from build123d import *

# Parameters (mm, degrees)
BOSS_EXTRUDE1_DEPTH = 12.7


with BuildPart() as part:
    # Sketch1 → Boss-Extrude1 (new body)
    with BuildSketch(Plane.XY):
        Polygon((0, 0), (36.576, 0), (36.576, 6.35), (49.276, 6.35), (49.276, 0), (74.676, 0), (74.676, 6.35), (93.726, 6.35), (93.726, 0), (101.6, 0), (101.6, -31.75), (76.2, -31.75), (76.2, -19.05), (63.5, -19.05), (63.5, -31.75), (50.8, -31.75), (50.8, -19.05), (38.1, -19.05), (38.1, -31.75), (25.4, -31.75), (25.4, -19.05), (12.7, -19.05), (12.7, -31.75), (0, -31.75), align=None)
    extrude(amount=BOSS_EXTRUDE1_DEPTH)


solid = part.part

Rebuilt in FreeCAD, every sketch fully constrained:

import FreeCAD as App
import Part
import Sketcher
Q = App.Units.Quantity

doc = App.newDocument("Part")
body = doc.addObject("PartDesign::Body", "Body")

# Sketch on XY plane
sketch1 = doc.addObject("Sketcher::SketchObject", "Sketch")
body.addObject(sketch1)
sketch1.AttachmentSupport = (doc.XY_Plane, [""])
sketch1.MapMode = "FlatFace"
sketch1.addGeometry([
    Part.LineSegment(App.Vector(36.576, 0, 0), App.Vector(0, 0, 0)),  # 0
    Part.LineSegment(App.Vector(0, 0, 0), App.Vector(0, -31.75, 0)),  # 1
    Part.LineSegment(App.Vector(0, -31.75, 0), App.Vector(12.7, -31.75, 0)),  # 2
    Part.LineSegment(App.Vector(12.7, -31.75, 0), App.Vector(12.7, -19.05, 0)),  # 3
    Part.LineSegment(App.Vector(12.7, -19.05, 0), App.Vector(25.4, -19.05, 0)),  # 4
    Part.LineSegment(App.Vector(25.4, -19.05, 0), App.Vector(25.4, -31.75, 0)),  # 5
    Part.LineSegment(App.Vector(25.4, -31.75, 0), App.Vector(38.1, -31.75, 0)),  # 6
    Part.LineSegment(App.Vector(38.1, -31.75, 0), App.Vector(38.1, -19.05, 0)),  # 7
    Part.LineSegment(App.Vector(38.1, -19.05, 0), App.Vector(50.8, -19.05, 0)),  # 8
    Part.LineSegment(App.Vector(50.8, -19.05, 0), App.Vector(50.8, -31.75, 0)),  # 9
    Part.LineSegment(App.Vector(50.8, -31.75, 0), App.Vector(63.5, -31.75, 0)),  # 10
    Part.LineSegment(App.Vector(63.5, -31.75, 0), App.Vector(63.5, -19.05, 0)),  # 11
    Part.LineSegment(App.Vector(63.5, -19.05, 0), App.Vector(76.2, -19.05, 0)),  # 12
    Part.LineSegment(App.Vector(76.2, -19.05, 0), App.Vector(76.2, -31.75, 0)),  # 13
    Part.LineSegment(App.Vector(76.2, -31.75, 0), App.Vector(101.6, -31.75, 0)),  # 14
    Part.LineSegment(App.Vector(101.6, -31.75, 0), App.Vector(101.6, 0, 0)),  # 15
    Part.LineSegment(App.Vector(101.6, 0, 0), App.Vector(93.726, 0, 0)),  # 16
    Part.LineSegment(App.Vector(93.726, 0, 0), App.Vector(93.726, 6.35, 0)),  # 17
    Part.LineSegment(App.Vector(93.726, 6.35, 0), App.Vector(74.676, 6.35, 0)),  # 18
    Part.LineSegment(App.Vector(74.676, 6.35, 0), App.Vector(74.676, 0, 0)),  # 19
    Part.LineSegment(App.Vector(74.676, 0, 0), App.Vector(49.276, 0, 0)),  # 20
    Part.LineSegment(App.Vector(49.276, 0, 0), App.Vector(49.276, 6.35, 0)),  # 21
    Part.LineSegment(App.Vector(49.276, 6.35, 0), App.Vector(36.576, 6.35, 0)),  # 22
    Part.LineSegment(App.Vector(36.576, 6.35, 0), App.Vector(36.576, 0, 0)),  # 23
], False)
sketch1.addConstraint([
    Sketcher.Constraint("Coincident", 0, 2, 1, 1),
    Sketcher.Constraint("Coincident", 1, 2, 2, 1),
    Sketcher.Constraint("Coincident", 2, 2, 3, 1),
    Sketcher.Constraint("Coincident", 3, 2, 4, 1),
    Sketcher.Constraint("Coincident", 4, 2, 5, 1),
    Sketcher.Constraint("Coincident", 5, 2, 6, 1),
    Sketcher.Constraint("Coincident", 6, 2, 7, 1),
    Sketcher.Constraint("Coincident", 7, 2, 8, 1),
    Sketcher.Constraint("Coincident", 8, 2, 9, 1),
    Sketcher.Constraint("Coincident", 9, 2, 10, 1),
    Sketcher.Constraint("Coincident", 10, 2, 11, 1),
    Sketcher.Constraint("Coincident", 11, 2, 12, 1),
    Sketcher.Constraint("Coincident", 12, 2, 13, 1),
    Sketcher.Constraint("Coincident", 13, 2, 14, 1),
    Sketcher.Constraint("Coincident", 14, 2, 15, 1),
    Sketcher.Constraint("Coincident", 15, 2, 16, 1),
    Sketcher.Constraint("Coincident", 16, 2, 17, 1),
    Sketcher.Constraint("Coincident", 17, 2, 18, 1),
    Sketcher.Constraint("Coincident", 18, 2, 19, 1),
    Sketcher.Constraint("Coincident", 19, 2, 20, 1),
    Sketcher.Constraint("Coincident", 20, 2, 21, 1),
    Sketcher.Constraint("Coincident", 21, 2, 22, 1),
    Sketcher.Constraint("Coincident", 22, 2, 23, 1),
    Sketcher.Constraint("Coincident", 23, 2, 0, 1),
    Sketcher.Constraint("Horizontal", 0),
    Sketcher.Constraint("Vertical", 1),
    Sketcher.Constraint("Horizontal", 2),
    Sketcher.Constraint("Vertical", 3),
    Sketcher.Constraint("Horizontal", 4),
    Sketcher.Constraint("Vertical", 5),
    Sketcher.Constraint("Horizontal", 6),
    Sketcher.Constraint("Vertical", 7),
    Sketcher.Constraint("Horizontal", 8),
    Sketcher.Constraint("Vertical", 9),
    Sketcher.Constraint("Horizontal", 10),
    Sketcher.Constraint("Vertical", 11),
    Sketcher.Constraint("Horizontal", 12),
    Sketcher.Constraint("Vertical", 13),
    Sketcher.Constraint("Horizontal", 14),
    Sketcher.Constraint("Vertical", 15),
    Sketcher.Constraint("Horizontal", 16),
    Sketcher.Constraint("Vertical", 17),
    Sketcher.Constraint("Horizontal", 18),
    Sketcher.Constraint("Vertical", 19),
    Sketcher.Constraint("Horizontal", 20),
    Sketcher.Constraint("Vertical", 21),
    Sketcher.Constraint("Horizontal", 22),
    Sketcher.Constraint("Vertical", 23),
    Sketcher.Constraint("Coincident", 0, 2, -1, 1),
    Sketcher.Constraint("PointOnObject", 15, 2, -1),
    Sketcher.Constraint("PointOnObject", 19, 2, -1),
    Sketcher.Constraint("Horizontal", 2, 2, 5, 2),
    Sketcher.Constraint("Horizontal", 4, 2, 7, 2),
    Sketcher.Constraint("Horizontal", 6, 2, 9, 2),
    Sketcher.Constraint("Horizontal", 8, 2, 11, 2),
    Sketcher.Constraint("Horizontal", 10, 2, 13, 2),
    Sketcher.Constraint("Horizontal", 18, 2, 21, 2),
    Sketcher.Constraint("Equal", 2, 4),
    Sketcher.Constraint("Equal", 4, 6),
    Sketcher.Constraint("Equal", 6, 8),
    Sketcher.Constraint("Equal", 8, 10),
    Sketcher.Constraint("Equal", 10, 12),
    Sketcher.Constraint("Equal", 14, 20),
    Sketcher.Constraint("Equal", 12, 22),
    Sketcher.Constraint("Equal", 22, 3),
    Sketcher.Constraint("DistanceX", 14, 1, 14, 2, Q("1 in")),
    Sketcher.Constraint("DistanceX", 2, 1, 2, 2, Q("0.5 in")),
    Sketcher.Constraint("DistanceY", 12, 2, 17, 2, Q("1 in")),
    Sketcher.Constraint("DistanceX", 0, 2, 0, 1, Q("1.44 in")),
    Sketcher.Constraint("DistanceX", 16, 2, 16, 1, Q("0.31 in")),
    Sketcher.Constraint("DistanceY", 1, 2, 1, 1, Q("1.25 in")),
])
pad1 = doc.addObject("PartDesign::Pad", "Pad")
body.addObject(pad1)
pad1.Profile = sketch1
pad1.Length = Q("0.5 in")

doc.recompute()
